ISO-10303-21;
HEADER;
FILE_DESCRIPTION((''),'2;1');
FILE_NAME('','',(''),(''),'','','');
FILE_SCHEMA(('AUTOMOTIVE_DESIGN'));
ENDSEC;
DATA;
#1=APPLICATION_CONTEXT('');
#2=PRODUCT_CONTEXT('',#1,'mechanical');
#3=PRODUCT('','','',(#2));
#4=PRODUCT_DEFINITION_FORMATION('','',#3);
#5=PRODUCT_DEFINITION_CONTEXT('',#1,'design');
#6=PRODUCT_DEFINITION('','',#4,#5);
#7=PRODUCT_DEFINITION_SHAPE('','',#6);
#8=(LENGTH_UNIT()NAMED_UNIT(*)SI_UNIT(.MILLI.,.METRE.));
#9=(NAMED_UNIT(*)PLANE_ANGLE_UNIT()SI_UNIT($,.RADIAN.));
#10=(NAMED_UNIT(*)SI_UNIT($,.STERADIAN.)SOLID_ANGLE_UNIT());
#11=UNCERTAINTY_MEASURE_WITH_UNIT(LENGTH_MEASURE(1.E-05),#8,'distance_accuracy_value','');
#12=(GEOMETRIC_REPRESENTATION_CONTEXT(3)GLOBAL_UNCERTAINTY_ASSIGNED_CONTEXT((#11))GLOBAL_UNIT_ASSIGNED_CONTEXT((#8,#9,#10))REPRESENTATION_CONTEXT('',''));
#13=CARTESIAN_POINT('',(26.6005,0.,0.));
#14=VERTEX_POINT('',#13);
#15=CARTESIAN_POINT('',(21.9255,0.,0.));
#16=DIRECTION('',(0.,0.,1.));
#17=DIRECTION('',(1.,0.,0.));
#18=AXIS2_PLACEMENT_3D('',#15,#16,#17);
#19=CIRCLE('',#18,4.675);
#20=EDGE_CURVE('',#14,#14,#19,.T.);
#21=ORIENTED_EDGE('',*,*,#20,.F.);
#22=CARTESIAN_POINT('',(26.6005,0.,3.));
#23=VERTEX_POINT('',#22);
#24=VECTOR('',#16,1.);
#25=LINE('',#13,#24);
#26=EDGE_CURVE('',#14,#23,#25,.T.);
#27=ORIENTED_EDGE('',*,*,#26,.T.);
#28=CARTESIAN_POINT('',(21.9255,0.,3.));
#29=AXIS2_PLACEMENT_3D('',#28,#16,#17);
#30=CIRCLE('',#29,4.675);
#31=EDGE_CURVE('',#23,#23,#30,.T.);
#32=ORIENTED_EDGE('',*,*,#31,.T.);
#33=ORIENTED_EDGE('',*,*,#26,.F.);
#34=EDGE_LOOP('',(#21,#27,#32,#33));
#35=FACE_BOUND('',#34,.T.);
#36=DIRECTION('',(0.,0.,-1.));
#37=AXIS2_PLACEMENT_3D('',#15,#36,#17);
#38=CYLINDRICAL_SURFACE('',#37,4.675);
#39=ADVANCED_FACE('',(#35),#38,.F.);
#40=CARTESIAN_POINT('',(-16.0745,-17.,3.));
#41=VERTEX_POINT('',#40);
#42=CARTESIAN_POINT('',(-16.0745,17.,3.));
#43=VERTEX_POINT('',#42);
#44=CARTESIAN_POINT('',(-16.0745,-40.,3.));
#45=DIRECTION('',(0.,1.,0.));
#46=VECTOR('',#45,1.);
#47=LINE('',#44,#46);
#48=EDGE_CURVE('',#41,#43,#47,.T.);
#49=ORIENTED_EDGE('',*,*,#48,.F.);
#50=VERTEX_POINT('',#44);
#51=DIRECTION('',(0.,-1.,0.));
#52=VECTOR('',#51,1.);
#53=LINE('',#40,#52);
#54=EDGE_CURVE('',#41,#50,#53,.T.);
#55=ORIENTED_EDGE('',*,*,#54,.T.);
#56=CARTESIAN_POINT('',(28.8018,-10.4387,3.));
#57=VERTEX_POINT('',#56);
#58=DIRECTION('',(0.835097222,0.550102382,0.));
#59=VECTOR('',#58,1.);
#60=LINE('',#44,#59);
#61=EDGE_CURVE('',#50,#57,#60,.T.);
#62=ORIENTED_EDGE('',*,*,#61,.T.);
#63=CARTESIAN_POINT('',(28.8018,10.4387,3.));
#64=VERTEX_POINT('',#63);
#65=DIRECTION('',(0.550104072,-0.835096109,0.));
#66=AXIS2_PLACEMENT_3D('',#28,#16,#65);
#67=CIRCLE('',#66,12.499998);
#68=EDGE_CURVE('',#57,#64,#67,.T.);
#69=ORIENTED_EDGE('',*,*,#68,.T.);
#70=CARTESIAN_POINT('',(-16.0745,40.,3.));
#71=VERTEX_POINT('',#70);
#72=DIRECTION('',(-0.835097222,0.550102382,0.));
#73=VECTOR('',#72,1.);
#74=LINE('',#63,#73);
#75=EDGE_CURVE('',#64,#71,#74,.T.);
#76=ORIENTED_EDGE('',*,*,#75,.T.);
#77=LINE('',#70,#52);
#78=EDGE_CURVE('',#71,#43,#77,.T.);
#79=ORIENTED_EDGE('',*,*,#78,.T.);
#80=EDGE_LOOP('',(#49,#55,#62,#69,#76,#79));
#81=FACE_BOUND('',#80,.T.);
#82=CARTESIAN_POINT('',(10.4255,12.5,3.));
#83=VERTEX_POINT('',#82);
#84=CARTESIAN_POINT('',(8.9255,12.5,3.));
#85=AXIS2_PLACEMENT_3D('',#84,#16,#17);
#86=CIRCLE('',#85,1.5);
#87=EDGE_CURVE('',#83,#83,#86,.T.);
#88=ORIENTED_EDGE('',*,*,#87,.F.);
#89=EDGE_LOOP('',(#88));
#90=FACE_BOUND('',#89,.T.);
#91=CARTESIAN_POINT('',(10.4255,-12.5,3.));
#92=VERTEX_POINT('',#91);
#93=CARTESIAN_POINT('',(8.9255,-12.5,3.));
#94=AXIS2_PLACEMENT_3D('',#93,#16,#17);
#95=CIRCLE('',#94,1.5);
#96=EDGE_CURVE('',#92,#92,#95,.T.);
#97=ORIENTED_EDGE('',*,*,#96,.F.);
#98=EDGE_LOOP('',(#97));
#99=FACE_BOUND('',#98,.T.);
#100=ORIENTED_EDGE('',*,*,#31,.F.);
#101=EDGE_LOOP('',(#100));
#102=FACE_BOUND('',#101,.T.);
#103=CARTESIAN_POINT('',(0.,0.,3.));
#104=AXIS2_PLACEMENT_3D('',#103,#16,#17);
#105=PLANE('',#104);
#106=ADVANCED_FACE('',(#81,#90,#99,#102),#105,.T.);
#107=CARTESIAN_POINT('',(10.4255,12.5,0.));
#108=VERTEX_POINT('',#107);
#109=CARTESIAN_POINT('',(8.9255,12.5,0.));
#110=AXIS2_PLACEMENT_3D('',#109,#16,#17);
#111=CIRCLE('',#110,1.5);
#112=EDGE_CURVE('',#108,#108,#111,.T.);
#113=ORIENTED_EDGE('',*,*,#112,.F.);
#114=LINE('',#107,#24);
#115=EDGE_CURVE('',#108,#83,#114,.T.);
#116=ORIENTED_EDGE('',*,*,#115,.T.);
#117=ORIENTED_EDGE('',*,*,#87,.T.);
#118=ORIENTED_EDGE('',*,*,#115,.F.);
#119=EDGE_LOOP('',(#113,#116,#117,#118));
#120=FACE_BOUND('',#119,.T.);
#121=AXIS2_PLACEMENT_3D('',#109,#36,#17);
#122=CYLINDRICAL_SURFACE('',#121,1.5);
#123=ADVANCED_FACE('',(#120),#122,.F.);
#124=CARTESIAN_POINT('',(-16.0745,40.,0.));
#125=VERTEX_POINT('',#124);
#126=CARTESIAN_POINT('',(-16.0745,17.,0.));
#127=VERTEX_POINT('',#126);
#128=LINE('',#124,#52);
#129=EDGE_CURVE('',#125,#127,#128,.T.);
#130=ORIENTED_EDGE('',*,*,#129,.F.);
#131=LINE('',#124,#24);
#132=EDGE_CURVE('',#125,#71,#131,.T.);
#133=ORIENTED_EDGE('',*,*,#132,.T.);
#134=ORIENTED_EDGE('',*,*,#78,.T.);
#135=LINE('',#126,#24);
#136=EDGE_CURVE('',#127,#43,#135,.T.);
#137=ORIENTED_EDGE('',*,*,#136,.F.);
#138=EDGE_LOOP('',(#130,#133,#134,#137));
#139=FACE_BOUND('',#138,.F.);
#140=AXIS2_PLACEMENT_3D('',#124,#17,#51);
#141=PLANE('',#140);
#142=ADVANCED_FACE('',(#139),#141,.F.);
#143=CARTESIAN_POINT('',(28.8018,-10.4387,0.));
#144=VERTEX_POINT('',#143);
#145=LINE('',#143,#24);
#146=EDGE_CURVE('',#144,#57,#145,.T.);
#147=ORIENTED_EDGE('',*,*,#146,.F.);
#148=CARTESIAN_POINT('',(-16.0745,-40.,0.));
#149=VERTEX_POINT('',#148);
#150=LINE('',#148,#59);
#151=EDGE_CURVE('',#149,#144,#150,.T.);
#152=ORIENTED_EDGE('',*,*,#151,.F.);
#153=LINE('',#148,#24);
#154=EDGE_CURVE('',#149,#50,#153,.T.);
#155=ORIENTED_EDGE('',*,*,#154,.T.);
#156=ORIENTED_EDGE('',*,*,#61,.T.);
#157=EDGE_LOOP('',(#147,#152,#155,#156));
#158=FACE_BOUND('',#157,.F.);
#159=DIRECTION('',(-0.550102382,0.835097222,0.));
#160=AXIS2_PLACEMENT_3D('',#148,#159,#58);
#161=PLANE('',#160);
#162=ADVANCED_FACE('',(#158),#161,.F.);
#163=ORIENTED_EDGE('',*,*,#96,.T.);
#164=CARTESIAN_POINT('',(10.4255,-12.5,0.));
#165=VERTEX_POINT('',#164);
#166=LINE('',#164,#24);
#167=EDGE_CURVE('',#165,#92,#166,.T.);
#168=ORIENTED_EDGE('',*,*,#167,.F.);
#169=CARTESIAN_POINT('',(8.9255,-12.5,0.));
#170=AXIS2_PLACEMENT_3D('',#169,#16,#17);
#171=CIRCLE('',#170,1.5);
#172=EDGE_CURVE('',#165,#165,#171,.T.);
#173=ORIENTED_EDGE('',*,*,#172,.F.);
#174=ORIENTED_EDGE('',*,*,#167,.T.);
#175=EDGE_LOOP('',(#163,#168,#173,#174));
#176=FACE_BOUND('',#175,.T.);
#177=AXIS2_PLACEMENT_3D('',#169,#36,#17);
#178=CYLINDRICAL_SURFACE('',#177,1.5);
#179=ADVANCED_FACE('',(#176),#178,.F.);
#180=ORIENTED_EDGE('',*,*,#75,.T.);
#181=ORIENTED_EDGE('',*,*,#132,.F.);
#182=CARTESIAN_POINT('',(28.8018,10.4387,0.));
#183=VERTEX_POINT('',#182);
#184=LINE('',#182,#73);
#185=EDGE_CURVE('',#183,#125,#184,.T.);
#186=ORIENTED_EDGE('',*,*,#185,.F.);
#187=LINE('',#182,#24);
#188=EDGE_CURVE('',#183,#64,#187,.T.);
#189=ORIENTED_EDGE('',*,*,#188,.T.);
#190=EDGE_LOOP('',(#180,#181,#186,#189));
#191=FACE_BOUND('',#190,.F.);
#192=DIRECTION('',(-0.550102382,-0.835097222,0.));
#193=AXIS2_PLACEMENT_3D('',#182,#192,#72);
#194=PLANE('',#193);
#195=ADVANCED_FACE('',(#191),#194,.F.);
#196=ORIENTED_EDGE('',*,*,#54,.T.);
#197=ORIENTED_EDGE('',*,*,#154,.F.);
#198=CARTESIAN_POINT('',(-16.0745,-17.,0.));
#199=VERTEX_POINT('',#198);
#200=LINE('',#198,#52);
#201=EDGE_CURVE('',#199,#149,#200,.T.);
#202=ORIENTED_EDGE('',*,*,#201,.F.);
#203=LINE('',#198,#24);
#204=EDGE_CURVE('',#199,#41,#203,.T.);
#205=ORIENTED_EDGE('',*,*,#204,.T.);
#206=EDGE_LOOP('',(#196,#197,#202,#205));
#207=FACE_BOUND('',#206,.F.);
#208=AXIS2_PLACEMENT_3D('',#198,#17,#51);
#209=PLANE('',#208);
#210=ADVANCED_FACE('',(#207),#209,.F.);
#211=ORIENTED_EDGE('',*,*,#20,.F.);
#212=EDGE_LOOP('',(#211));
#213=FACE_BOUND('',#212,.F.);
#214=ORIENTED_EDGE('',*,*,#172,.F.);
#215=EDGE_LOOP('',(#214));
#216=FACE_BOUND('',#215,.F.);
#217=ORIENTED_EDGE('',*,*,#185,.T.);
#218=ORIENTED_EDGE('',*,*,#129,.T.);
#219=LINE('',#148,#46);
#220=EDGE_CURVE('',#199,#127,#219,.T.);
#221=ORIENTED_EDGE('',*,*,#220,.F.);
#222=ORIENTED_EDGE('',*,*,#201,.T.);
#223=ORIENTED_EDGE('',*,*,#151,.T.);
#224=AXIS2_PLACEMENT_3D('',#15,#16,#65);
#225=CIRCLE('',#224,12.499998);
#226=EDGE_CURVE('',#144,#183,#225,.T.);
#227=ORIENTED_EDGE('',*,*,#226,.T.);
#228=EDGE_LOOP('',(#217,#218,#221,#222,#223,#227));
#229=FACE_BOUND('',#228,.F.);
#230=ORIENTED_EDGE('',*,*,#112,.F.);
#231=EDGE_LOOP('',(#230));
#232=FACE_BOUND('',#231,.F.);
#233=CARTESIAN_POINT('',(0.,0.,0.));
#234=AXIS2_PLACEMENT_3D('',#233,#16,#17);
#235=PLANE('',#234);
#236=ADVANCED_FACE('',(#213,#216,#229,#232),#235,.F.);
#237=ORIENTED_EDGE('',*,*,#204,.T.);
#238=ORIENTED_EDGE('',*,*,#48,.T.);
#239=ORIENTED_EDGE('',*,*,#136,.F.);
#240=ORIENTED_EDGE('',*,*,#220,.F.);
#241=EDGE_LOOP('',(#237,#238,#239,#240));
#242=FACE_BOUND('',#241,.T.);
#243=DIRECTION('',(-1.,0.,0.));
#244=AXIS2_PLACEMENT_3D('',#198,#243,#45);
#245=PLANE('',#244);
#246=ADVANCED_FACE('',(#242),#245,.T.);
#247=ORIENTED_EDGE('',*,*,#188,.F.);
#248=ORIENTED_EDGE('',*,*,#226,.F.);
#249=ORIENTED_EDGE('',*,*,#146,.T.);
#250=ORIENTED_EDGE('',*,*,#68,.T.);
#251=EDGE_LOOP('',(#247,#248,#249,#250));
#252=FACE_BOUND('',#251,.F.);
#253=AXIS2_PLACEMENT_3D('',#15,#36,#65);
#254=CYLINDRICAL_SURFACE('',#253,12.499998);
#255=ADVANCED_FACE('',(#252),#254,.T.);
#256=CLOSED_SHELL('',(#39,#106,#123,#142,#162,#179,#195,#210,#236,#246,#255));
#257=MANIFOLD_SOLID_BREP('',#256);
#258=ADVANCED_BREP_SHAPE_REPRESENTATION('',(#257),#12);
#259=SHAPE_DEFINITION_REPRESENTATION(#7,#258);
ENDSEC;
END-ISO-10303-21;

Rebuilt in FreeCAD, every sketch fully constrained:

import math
import FreeCAD as App
import Part
import Sketcher
Q = App.Units.Quantity

doc = App.newDocument("Part")
params = doc.addObject("Spreadsheet::Sheet", "Params")
for row, (alias, value) in enumerate([
    ("sketch1_diameter", "3 mm"),
    ("sketch1_radius", "12.5 mm"),
    ("sketch1_diameter2", "9.35 mm"),
    ("sketch1_height", "80 mm"),
    ("pad1_length", "3 mm"),
], start=1):
    params.set(f"A{row}", alias)
    params.set(f"B{row}", "=" + value)
    params.setAlias(f"B{row}", alias)

body = doc.addObject("PartDesign::Body", "Body")

sketch1 = body.newObject("Sketcher::SketchObject", "Sketch")
sketch1.AttachmentSupport = (doc.getObject("XY_Plane"), [""])
sketch1.MapMode = "FlatFace"
sketch1.addGeometry(Part.LineSegment(App.Vector(-16.1, -40, 0), App.Vector(28.8, -10.4, 0)), False)
sketch1.addGeometry(Part.ArcOfCircle(Part.Circle(App.Vector(21.9, 0, 0), App.Vector(0, 0, 1), 12.5), math.radians(-57), math.radians(57)), False)
sketch1.addGeometry(Part.LineSegment(App.Vector(28.8, 10.4, 0), App.Vector(-16.1, 40, 0)), False)
sketch1.addGeometry(Part.LineSegment(App.Vector(-16.1, 40, 0), App.Vector(-16.1, -40, 0)), False)
sketch1.addGeometry(Part.Circle(App.Vector(8.9, -12.5, 0), App.Vector(0, 0, 1), 1.5), False)
sketch1.addGeometry(Part.Circle(App.Vector(8.9, 12.5, 0), App.Vector(0, 0, 1), 1.5), False)
sketch1.addGeometry(Part.Circle(App.Vector(21.9, 0, 0), App.Vector(0, 0, 1), 4.7), False)
sketch1.addConstraint(Sketcher.Constraint("Tangent", 0, 2, 1, 1))
sketch1.addConstraint(Sketcher.Constraint("Tangent", 1, 2, 2, 1))
sketch1.addConstraint(Sketcher.Constraint("Coincident", 2, 2, 3, 1))
sketch1.addConstraint(Sketcher.Constraint("Coincident", 3, 2, 0, 1))
sketch1.addConstraint(Sketcher.Constraint("Vertical", 3))
sketch1.addConstraint(Sketcher.Constraint("Coincident", 6, 3, 1, 3))
sketch1.addConstraint(Sketcher.Constraint("Equal", 4, 5))
sketch1.addConstraint(Sketcher.Constraint("Symmetric", 4, 3, 5, 3, -1))
sketch1.addConstraint(Sketcher.Constraint("Symmetric", 0, 2, 1, 2, -1))
sketch1.addConstraint(Sketcher.Constraint("Diameter", 4, Q("3 mm")))
sketch1.addConstraint(Sketcher.Constraint("Radius", 1, Q("12.5 mm")))
sketch1.addConstraint(Sketcher.Constraint("Diameter", 6, Q("9.35 mm")))
sketch1.addConstraint(Sketcher.Constraint("DistanceY", 4, 3, 5, 3, Q("25 mm")))
sketch1.addConstraint(Sketcher.Constraint("DistanceX", 2, 2, 5, 3, Q("25 mm")))
sketch1.addConstraint(Sketcher.Constraint("DistanceY", 3, 2, 3, 1, Q("80 mm")))
sketch1.addConstraint(Sketcher.Constraint("DistanceX", 4, 3, 1, 3, Q("13 mm")))
sketch1.addConstraint(Sketcher.Constraint("DistanceX", -1, 1, 1, 3, Q("21.9255 mm")))
sketch1.setExpression("Constraints[9]", "Params.sketch1_diameter")
sketch1.setExpression("Constraints[10]", "Params.sketch1_radius")
sketch1.setExpression("Constraints[11]", "Params.sketch1_diameter2")
sketch1.setExpression("Constraints[14]", "Params.sketch1_height")
pad1 = body.newObject("PartDesign::Pad", "Pad")
pad1.Profile = sketch1
pad1.setExpression("Length", "Params.pad1_length")

doc.recompute()
